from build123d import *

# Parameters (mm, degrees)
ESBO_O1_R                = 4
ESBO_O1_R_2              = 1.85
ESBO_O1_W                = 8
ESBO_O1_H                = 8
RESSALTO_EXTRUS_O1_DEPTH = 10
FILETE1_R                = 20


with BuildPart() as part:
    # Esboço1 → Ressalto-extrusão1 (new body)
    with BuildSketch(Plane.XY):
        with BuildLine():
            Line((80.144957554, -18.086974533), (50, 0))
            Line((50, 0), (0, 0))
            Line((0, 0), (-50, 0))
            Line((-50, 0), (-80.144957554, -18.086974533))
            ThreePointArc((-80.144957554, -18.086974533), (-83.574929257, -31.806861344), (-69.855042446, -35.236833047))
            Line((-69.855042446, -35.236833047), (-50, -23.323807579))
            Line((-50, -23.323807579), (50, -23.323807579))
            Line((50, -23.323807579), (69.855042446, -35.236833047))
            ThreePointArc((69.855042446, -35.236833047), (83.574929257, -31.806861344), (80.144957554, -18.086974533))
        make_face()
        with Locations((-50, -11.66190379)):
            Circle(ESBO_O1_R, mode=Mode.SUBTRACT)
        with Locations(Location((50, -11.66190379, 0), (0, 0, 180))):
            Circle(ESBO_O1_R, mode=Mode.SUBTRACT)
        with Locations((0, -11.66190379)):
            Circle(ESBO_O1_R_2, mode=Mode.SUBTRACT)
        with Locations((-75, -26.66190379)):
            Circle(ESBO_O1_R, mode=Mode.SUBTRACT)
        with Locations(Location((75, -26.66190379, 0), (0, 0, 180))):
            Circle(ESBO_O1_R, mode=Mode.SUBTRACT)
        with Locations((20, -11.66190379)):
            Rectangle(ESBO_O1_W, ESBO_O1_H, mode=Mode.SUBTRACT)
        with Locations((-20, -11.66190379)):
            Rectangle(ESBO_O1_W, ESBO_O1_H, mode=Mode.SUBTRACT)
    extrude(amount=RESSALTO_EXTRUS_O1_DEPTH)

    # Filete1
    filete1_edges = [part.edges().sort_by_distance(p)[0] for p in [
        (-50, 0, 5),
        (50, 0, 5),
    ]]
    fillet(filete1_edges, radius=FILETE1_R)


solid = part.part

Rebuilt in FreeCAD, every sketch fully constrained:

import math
import FreeCAD as App
import Part
import Sketcher


def edges_at(feature, points):
    """Names of the edges that pass closest to the given points."""
    edges = feature.Shape.Edges
    near = lambda p: min(range(len(edges)), key=lambda i: edges[i].distToShape(Part.Vertex(*p))[0])
    return sorted({f"Edge{near(p) + 1}" for p in points})


def add_polygon(sketch, points):
    """Adds a closed chain of lines whose ends are joined by coincident constraints."""
    first, n = sketch.GeometryCount, len(points)
    for a, b in zip(points, points[1:] + points[:1]):
        sketch.addGeometry(Part.LineSegment(App.Vector(*a, 0), App.Vector(*b, 0)), False)
    for i in range(n):
        sketch.addConstraint(Sketcher.Constraint("Coincident", first + i, 2, first + (i + 1) % n, 1))

doc = App.newDocument("Part")
body = doc.addObject("PartDesign::Body", "Body")

sketch1 = body.newObject("Sketcher::SketchObject", "Sketch")
sketch1.AttachmentSupport = (doc.getObject("XY_Plane"), [""])
sketch1.MapMode = "FlatFace"
sketch1.addGeometry(Part.LineSegment(App.Vector(80.144958, -18.086975, 0), App.Vector(50, 0, 0)), False)
sketch1.addGeometry(Part.LineSegment(App.Vector(50, 0, 0), App.Vector(-50, 0, 0)), False)
sketch1.addGeometry(Part.LineSegment(App.Vector(-50, 0, 0), App.Vector(-80.144958, -18.086975, 0)), False)
sketch1.addGeometry(Part.ArcOfCircle(Part.Circle(App.Vector(-75, -26.661904, 0), App.Vector(0, 0, 1), 10), math.radians(120.963757), math.radians(300.963757)), False)
sketch1.addGeometry(Part.LineSegment(App.Vector(-69.855042, -35.236833, 0), App.Vector(-50, -23.323808, 0)), False)
sketch1.addGeometry(Part.LineSegment(App.Vector(-50, -23.323808, 0), App.Vector(50, -23.323808, 0)), False)
sketch1.addGeometry(Part.LineSegment(App.Vector(50, -23.323808, 0), App.Vector(69.855042, -35.236833, 0)), False)
sketch1.addGeometry(Part.ArcOfCircle(Part.Circle(App.Vector(75, -26.661904, 0), App.Vector(0, 0, 1), 10), math.radians(-120.963757), math.radians(59.036243)), False)
sketch1.addGeometry(Part.Circle(App.Vector(-75, -26.661904, 0), App.Vector(0, 0, 1), 4), False)
sketch1.addGeometry(Part.Circle(App.Vector(75, -26.661904, 0), App.Vector(0, 0, 1), 4), False)
sketch1.addGeometry(Part.Circle(App.Vector(-50, -11.661904, 0), App.Vector(0, 0, 1), 4), False)
add_polygon(sketch1, [(-16, -15.661904), (-24, -15.661904), (-24, -7.661904), (-16, -7.661904)])
sketch1.addGeometry(Part.Circle(App.Vector(0, -11.661904, 0), App.Vector(0, 0, 1), 1.85), False)
add_polygon(sketch1, [(24, -15.661904), (16, -15.661904), (16, -7.661904), (24, -7.661904)])
sketch1.addGeometry(Part.Circle(App.Vector(50, -11.661904, 0), App.Vector(0, 0, 1), 4), False)
sketch1.addConstraint(Sketcher.Constraint("Coincident", 0, 2, 1, 1))
sketch1.addConstraint(Sketcher.Constraint("Coincident", 1, 2, 2, 1))
sketch1.addConstraint(Sketcher.Constraint("Tangent", 2, 2, 3, 1))
sketch1.addConstraint(Sketcher.Constraint("Tangent", 3, 2, 4, 1))
sketch1.addConstraint(Sketcher.Constraint("Coincident", 4, 2, 5, 1))
sketch1.addConstraint(Sketcher.Constraint("Coincident", 5, 2, 6, 1))
sketch1.addConstraint(Sketcher.Constraint("Tangent", 6, 2, 7, 1))
sketch1.addConstraint(Sketcher.Constraint("Tangent", 7, 2, 0, 1))
sketch1.addConstraint(Sketcher.Constraint("Horizontal", 1))
sketch1.addConstraint(Sketcher.Constraint("Horizontal", 5))
sketch1.addConstraint(Sketcher.Constraint("Horizontal", 11))
sketch1.addConstraint(Sketcher.Constraint("Vertical", 12))
sketch1.addConstraint(Sketcher.Constraint("Horizontal", 13))
sketch1.addConstraint(Sketcher.Constraint("Vertical", 14))
sketch1.addConstraint(Sketcher.Constraint("Horizontal", 16))
sketch1.addConstraint(Sketcher.Constraint("Vertical", 17))
sketch1.addConstraint(Sketcher.Constraint("Horizontal", 18))
sketch1.addConstraint(Sketcher.Constraint("Vertical", 19))
sketch1.addConstraint(Sketcher.Constraint("Coincident", 8, 3, 3, 3))
sketch1.addConstraint(Sketcher.Constraint("Coincident", 9, 3, 7, 3))
sketch1.addConstraint(Sketcher.Constraint("Equal", 3, 7))
sketch1.addConstraint(Sketcher.Constraint("Equal", 8, 9))
sketch1.addConstraint(Sketcher.Constraint("Equal", 9, 10))
sketch1.addConstraint(Sketcher.Constraint("Equal", 10, 20))
sketch1.addConstraint(Sketcher.Constraint("Symmetric", 0, 2, 1, 2, -1, 1))
sketch1.addConstraint(Sketcher.Constraint("Symmetric", 3, 3, 7, 3, -2))
sketch1.addConstraint(Sketcher.Constraint("Symmetric", 10, 3, 20, 3, -2))
sketch1.addConstraint(Sketcher.Constraint("Symmetric", 14, 2, 16, 2, -2))
sketch1.addConstraint(Sketcher.Constraint("Symmetric", 12, 2, 18, 2, -2))
sketch1.addConstraint(Sketcher.Constraint("PointOnObject", 15, 3, -2))
sketch1.addConstraint(Sketcher.Constraint("Parallel", 2, 4))
sketch1.addConstraint(Sketcher.Constraint("Parallel", 0, 6))
sketch1.addConstraint(Sketcher.Constraint("Horizontal", 10, 3, 15, 3))
sketch1.addConstraint(Sketcher.Constraint("Vertical", 20, 3, 0, 2))
sketch1.addConstraint(Sketcher.Constraint("Vertical", 1, 2, 4, 2))
sketch1.addConstraint(Sketcher.Constraint("Equal", 18, 12))
sketch1.addConstraint(Sketcher.Constraint("Diameter", 8, 8.0))
sketch1.addConstraint(Sketcher.Constraint("Radius", 3, 10.0))
sketch1.addConstraint(Sketcher.Constraint("Diameter", 15, 3.7))
sketch1.addConstraint(Sketcher.Constraint("DistanceX", 1, 2, 1, 1, 100.0))
sketch1.addConstraint(Sketcher.Constraint("DistanceX", 11, 2, 11, 1, 8.0))
sketch1.addConstraint(Sketcher.Constraint("DistanceX", 3, 3, -1, 1, 75.0))
sketch1.addConstraint(Sketcher.Constraint("DistanceX", 11, 2, -1, 1, 24.0))
sketch1.addConstraint(Sketcher.Constraint("DistanceY", 3, 3, 10, 3, 15.0))
sketch1.addConstraint(Sketcher.Constraint("DistanceY", 11, 2, 15, 3, 4.0))
sketch1.addConstraint(Sketcher.Constraint("Distance", 0, 35.154759))
pad1 = body.newObject("PartDesign::Pad", "Pad")
pad1.Profile = sketch1
pad1.Length = 10
doc.recompute()

fillet = body.newObject("PartDesign::Fillet", "Fillet")
fillet.Base = (pad1, edges_at(pad1, [(-50, 0, 5), (50, 0, 5)]))
fillet.Radius = 20

doc.recompute()
